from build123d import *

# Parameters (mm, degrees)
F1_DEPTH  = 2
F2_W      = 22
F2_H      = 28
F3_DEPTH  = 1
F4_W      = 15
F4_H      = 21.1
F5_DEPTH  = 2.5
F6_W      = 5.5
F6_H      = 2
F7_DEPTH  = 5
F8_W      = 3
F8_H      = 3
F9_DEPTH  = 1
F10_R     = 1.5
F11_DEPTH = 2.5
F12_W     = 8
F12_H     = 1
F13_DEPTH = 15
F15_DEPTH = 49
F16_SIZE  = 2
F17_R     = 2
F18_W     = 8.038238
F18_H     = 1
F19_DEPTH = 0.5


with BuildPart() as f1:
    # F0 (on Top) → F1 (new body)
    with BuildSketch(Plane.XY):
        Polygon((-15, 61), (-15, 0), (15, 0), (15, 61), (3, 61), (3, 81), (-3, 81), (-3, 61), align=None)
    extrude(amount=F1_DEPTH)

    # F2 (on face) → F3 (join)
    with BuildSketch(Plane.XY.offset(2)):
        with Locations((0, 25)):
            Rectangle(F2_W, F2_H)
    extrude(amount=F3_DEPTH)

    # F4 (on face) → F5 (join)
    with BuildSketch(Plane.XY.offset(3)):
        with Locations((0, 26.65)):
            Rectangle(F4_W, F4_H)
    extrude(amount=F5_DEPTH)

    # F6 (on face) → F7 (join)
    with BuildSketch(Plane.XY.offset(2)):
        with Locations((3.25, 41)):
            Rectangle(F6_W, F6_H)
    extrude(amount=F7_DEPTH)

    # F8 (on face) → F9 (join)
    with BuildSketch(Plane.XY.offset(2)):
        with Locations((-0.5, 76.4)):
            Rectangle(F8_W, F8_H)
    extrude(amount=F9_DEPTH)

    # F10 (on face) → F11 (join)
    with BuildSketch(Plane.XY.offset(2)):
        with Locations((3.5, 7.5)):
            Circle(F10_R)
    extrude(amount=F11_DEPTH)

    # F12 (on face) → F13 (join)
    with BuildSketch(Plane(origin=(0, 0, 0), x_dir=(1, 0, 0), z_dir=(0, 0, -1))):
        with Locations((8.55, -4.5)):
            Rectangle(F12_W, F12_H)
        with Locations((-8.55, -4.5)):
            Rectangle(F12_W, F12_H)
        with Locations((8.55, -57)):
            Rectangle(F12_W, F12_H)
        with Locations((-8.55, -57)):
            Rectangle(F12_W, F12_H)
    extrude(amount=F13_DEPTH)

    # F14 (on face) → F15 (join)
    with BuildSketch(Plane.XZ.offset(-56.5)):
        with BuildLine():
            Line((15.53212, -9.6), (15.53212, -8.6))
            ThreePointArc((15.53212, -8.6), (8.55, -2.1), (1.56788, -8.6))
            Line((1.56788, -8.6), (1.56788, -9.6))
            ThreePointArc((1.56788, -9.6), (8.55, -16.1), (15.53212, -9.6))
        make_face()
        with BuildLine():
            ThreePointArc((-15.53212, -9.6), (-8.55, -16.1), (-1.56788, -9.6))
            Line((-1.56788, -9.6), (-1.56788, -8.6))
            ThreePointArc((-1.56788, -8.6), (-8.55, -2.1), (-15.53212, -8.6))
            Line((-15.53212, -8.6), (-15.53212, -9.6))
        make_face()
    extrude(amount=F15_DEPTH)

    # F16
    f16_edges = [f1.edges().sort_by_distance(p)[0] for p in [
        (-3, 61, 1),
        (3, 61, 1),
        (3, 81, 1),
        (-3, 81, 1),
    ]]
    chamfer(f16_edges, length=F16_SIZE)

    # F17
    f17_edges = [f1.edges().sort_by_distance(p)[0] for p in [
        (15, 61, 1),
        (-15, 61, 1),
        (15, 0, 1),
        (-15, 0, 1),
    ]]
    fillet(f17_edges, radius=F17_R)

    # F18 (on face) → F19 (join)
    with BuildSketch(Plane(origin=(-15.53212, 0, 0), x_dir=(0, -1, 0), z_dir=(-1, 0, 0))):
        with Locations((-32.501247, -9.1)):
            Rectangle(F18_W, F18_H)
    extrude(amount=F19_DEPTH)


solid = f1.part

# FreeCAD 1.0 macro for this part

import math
import FreeCAD as App
import Part
import Sketcher
from FreeCAD import Vector
Q = App.Units.Quantity


def edges_at(feature, points):
    """Names of the edges that pass closest to the given points."""
    edges = feature.Shape.Edges
    near = lambda p: min(range(len(edges)), key=lambda i: edges[i].distToShape(Part.Vertex(*p))[0])
    return sorted({f"Edge{near(p) + 1}" for p in points})


def add_polygon(sketch, points):
    """Adds a closed chain of lines whose ends are joined by coincident constraints."""
    first, n = sketch.GeometryCount, len(points)
    for a, b in zip(points, points[1:] + points[:1]):
        sketch.addGeometry(Part.LineSegment(App.Vector(*a, 0), App.Vector(*b, 0)), False)
    for i in range(n):
        sketch.addConstraint(Sketcher.Constraint("Coincident", first + i, 2, first + (i + 1) % n, 1))

doc = App.newDocument("Part")
params = doc.addObject("Spreadsheet::Sheet", "Params")
for row, (alias, value) in enumerate([
    ("sketch1_width", "30 mm"),
    ("sketch1_width2", "12 mm"),
    ("sketch1_height", "61 mm"),
    ("sketch1_height2", "20 mm"),
    ("pad1_length", "2 mm"),
    ("sketch2_width", "22 mm"),
    ("sketch2_height", "28 mm"),
    ("pad2_length", "1 mm"),
    ("sketch3_width", "15 mm"),
    ("sketch3_height", "21.1 mm"),
    ("pad3_length", "2.5 mm"),
    ("sketch4_height", "2 mm"),
    ("sketch4_width", "5.5 mm"),
    ("pad4_length", "5 mm"),
    ("sketch5_width", "3 mm"),
    ("pad5_length", "1 mm"),
    ("sketch6_diameter", "3 mm"),
    ("pad6_length", "2.5 mm"),
    ("sketch7_width", "8 mm"),
    ("sketch7_height", "1 mm"),
    ("pad7_length", "15 mm"),
    ("sketch8_radius", "7 mm"),
    ("sketch8_height", "1 mm"),
    ("pad8_length", "49 mm"),
    ("chamfer_size", "2 mm"),
    ("fillet_radius", "2 mm"),
    ("sketch9_height", "1 mm"),
    ("pad9_length", "0.5 mm"),
], start=1):
    params.set(f"A{row}", alias)
    params.set(f"B{row}", "=" + value)
    params.setAlias(f"B{row}", alias)

body = doc.addObject("PartDesign::Body", "Body")

sketch1 = body.newObject("Sketcher::SketchObject", "Sketch")
sketch1.AttachmentSupport = (doc.getObject("XY_Plane"), [""])
sketch1.MapMode = "FlatFace"
add_polygon(sketch1, [(-15, 61), (-15, 0), (15, 0), (15, 61), (3, 61), (3, 81), (-3, 81), (-3, 61)])
sketch1.addConstraint(Sketcher.Constraint("Vertical", 0))
sketch1.addConstraint(Sketcher.Constraint("Horizontal", 1))
sketch1.addConstraint(Sketcher.Constraint("Vertical", 2))
sketch1.addConstraint(Sketcher.Constraint("Horizontal", 3))
sketch1.addConstraint(Sketcher.Constraint("Vertical", 4))
sketch1.addConstraint(Sketcher.Constraint("Horizontal", 5))
sketch1.addConstraint(Sketcher.Constraint("Vertical", 6))
sketch1.addConstraint(Sketcher.Constraint("Horizontal", 7))
sketch1.addConstraint(Sketcher.Constraint("Symmetric", 0, 2, 1, 2, -1, 1))
sketch1.addConstraint(Sketcher.Constraint("Symmetric", 3, 2, 6, 2, -2))
sketch1.addConstraint(Sketcher.Constraint("DistanceX", 1, 1, 1, 2, Q("30 mm")))
sketch1.addConstraint(Sketcher.Constraint("DistanceX", 3, 2, 3, 1, Q("12 mm")))
sketch1.addConstraint(Sketcher.Constraint("DistanceY", 0, 2, 0, 1, Q("61 mm")))
sketch1.addConstraint(Sketcher.Constraint("DistanceY", 4, 1, 4, 2, Q("20 mm")))
sketch1.setExpression("Constraints[18]", "Params.sketch1_width")
sketch1.setExpression("Constraints[19]", "Params.sketch1_width2")
sketch1.setExpression("Constraints[20]", "Params.sketch1_height")
sketch1.setExpression("Constraints[21]", "Params.sketch1_height2")
pad1 = body.newObject("PartDesign::Pad", "Pad")
pad1.Profile = sketch1
pad1.setExpression("Length", "Params.pad1_length")

sketch2 = body.newObject("Sketcher::SketchObject", "Sketch001")
sketch2.AttachmentSupport = (doc.getObject("XY_Plane"), [""])
sketch2.MapMode = "FlatFace"
sketch2.AttachmentOffset = App.Placement(Vector(0, 0, 2), App.Rotation())
add_polygon(sketch2, [(-11, 39), (-11, 11), (11, 11), (11, 39)])
sketch2.addConstraint(Sketcher.Constraint("Vertical", 0))
sketch2.addConstraint(Sketcher.Constraint("Horizontal", 1))
sketch2.addConstraint(Sketcher.Constraint("Vertical", 2))
sketch2.addConstraint(Sketcher.Constraint("Horizontal", 3))
sketch2.addConstraint(Sketcher.Constraint("DistanceX", 1, 1, 1, 2, Q("22 mm")))
sketch2.addConstraint(Sketcher.Constraint("DistanceY", 0, 2, 0, 1, Q("28 mm")))
sketch2.addConstraint(Sketcher.Constraint("DistanceX", 0, 2, -1, 1, Q("11 mm")))
sketch2.addConstraint(Sketcher.Constraint("DistanceY", -1, 1, 0, 2, Q("11 mm")))
sketch2.setExpression("Constraints[8]", "Params.sketch2_width")
sketch2.setExpression("Constraints[9]", "Params.sketch2_height")
pad2 = body.newObject("PartDesign::Pad", "Pad001")
pad2.Profile = sketch2
pad2.setExpression("Length", "Params.pad2_length")

sketch3 = body.newObject("Sketcher::SketchObject", "Sketch002")
sketch3.AttachmentSupport = (doc.getObject("XY_Plane"), [""])
sketch3.MapMode = "FlatFace"
sketch3.AttachmentOffset = App.Placement(Vector(0, 0, 3), App.Rotation())
add_polygon(sketch3, [(-8, 37), (-8, 16), (8, 16), (8, 37)])
sketch3.addConstraint(Sketcher.Constraint("Vertical", 0))
sketch3.addConstraint(Sketcher.Constraint("Horizontal", 1))
sketch3.addConstraint(Sketcher.Constraint("Vertical", 2))
sketch3.addConstraint(Sketcher.Constraint("Horizontal", 3))
sketch3.addConstraint(Sketcher.Constraint("DistanceX", 1, 1, 1, 2, Q("15 mm")))
sketch3.addConstraint(Sketcher.Constraint("DistanceY", 0, 2, 0, 1, Q("21.1 mm")))
sketch3.addConstraint(Sketcher.Constraint("DistanceX", 0, 2, -1, 1, Q("7.5 mm")))
sketch3.addConstraint(Sketcher.Constraint("DistanceY", -1, 1, 0, 2, Q("16.1 mm")))
sketch3.setExpression("Constraints[8]", "Params.sketch3_width")
sketch3.setExpression("Constraints[9]", "Params.sketch3_height")
pad3 = body.newObject("PartDesign::Pad", "Pad002")
pad3.Profile = sketch3
pad3.setExpression("Length", "Params.pad3_length")

sketch4 = body.newObject("Sketcher::SketchObject", "Sketch003")
sketch4.AttachmentSupport = (doc.getObject("XY_Plane"), [""])
sketch4.MapMode = "FlatFace"
sketch4.AttachmentOffset = App.Placement(Vector(0, 0, 2), App.Rotation())
add_polygon(sketch4, [(0.5, 42), (0.5, 40), (6, 40), (6, 42)])
sketch4.addConstraint(Sketcher.Constraint("Vertical", 0))
sketch4.addConstraint(Sketcher.Constraint("Horizontal", 1))
sketch4.addConstraint(Sketcher.Constraint("Vertical", 2))
sketch4.addConstraint(Sketcher.Constraint("Horizontal", 3))
sketch4.addConstraint(Sketcher.Constraint("DistanceY", 0, 2, 0, 1, Q("2 mm")))
sketch4.addConstraint(Sketcher.Constraint("DistanceX", 1, 1, 1, 2, Q("5.5 mm")))
sketch4.addConstraint(Sketcher.Constraint("DistanceY", -1, 1, 0, 2, Q("40 mm")))
sketch4.addConstraint(Sketcher.Constraint("DistanceX", -1, 1, 1, 2, Q("6 mm")))
sketch4.setExpression("Constraints[8]", "Params.sketch4_height")
sketch4.setExpression("Constraints[9]", "Params.sketch4_width")
pad4 = body.newObject("PartDesign::Pad", "Pad003")
pad4.Profile = sketch4
pad4.setExpression("Length", "Params.pad4_length")

sketch5 = body.newObject("Sketcher::SketchObject", "Sketch004")
sketch5.AttachmentSupport = (doc.getObject("XY_Plane"), [""])
sketch5.MapMode = "FlatFace"
sketch5.AttachmentOffset = App.Placement(Vector(0, 0, 2), App.Rotation())
add_polygon(sketch5, [(-2, 77.9), (-2, 74.9), (1, 74.9), (1, 77.9)])
sketch5.addConstraint(Sketcher.Constraint("Vertical", 0))
sketch5.addConstraint(Sketcher.Constraint("Horizontal", 1))
sketch5.addConstraint(Sketcher.Constraint("Vertical", 2))
sketch5.addConstraint(Sketcher.Constraint("Horizontal", 3))
sketch5.addConstraint(Sketcher.Constraint("Equal", 3, 0))
sketch5.addConstraint(Sketcher.Constraint("DistanceX", 1, 1, 1, 2, Q("3 mm")))
sketch5.addConstraint(Sketcher.Constraint("DistanceX", 0, 2, -1, 1, Q("2 mm")))
sketch5.addConstraint(Sketcher.Constraint("DistanceY", -1, 1, 0, 2, Q("74.9 mm")))
sketch5.setExpression("Constraints[9]", "Params.sketch5_width")
pad5 = body.newObject("PartDesign::Pad", "Pad004")
pad5.Profile = sketch5
pad5.setExpression("Length", "Params.pad5_length")

sketch6 = body.newObject("Sketcher::SketchObject", "Sketch005")
sketch6.AttachmentSupport = (doc.getObject("XY_Plane"), [""])
sketch6.MapMode = "FlatFace"
sketch6.AttachmentOffset = App.Placement(Vector(0, 0, 2), App.Rotation())
sketch6.addGeometry(Part.Circle(Vector(3.5, 7.5, 0), Vector(0, 0, 1), 1.5), False)
sketch6.addConstraint(Sketcher.Constraint("Diameter", 0, Q("3 mm")))
sketch6.addConstraint(Sketcher.Constraint("DistanceX", -1, 1, 0, 3, Q("3.5 mm")))
sketch6.addConstraint(Sketcher.Constraint("DistanceY", -1, 1, 0, 3, Q("7.5 mm")))
sketch6.setExpression("Constraints[0]", "Params.sketch6_diameter")
pad6 = body.newObject("PartDesign::Pad", "Pad005")
pad6.Profile = sketch6
pad6.setExpression("Length", "Params.pad6_length")

sketch7 = body.newObject("Sketcher::SketchObject", "Sketch006")
sketch7.AttachmentSupport = (doc.getObject("XY_Plane"), [""])
sketch7.MapMode = "FlatFace"
add_polygon(sketch7, [(4.5, 4), (4.5, 5), (12.6, 5), (12.6, 4)])
add_polygon(sketch7, [(-12.6, 4), (-12.6, 5), (-4.5, 5), (-4.5, 4)])
add_polygon(sketch7, [(4.5, 56.5), (4.5, 57.5), (12.6, 57.5), (12.6, 56.5)])
add_polygon(sketch7, [(-12.6, 56.5), (-12.6, 57.5), (-4.5, 57.5), (-4.5, 56.5)])
sketch7.addConstraint(Sketcher.Constraint("Vertical", 0))
sketch7.addConstraint(Sketcher.Constraint("Horizontal", 1))
sketch7.addConstraint(Sketcher.Constraint("Vertical", 2))
sketch7.addConstraint(Sketcher.Constraint("Horizontal", 3))
sketch7.addConstraint(Sketcher.Constraint("Vertical", 4))
sketch7.addConstraint(Sketcher.Constraint("Horizontal", 5))
sketch7.addConstraint(Sketcher.Constraint("Vertical", 6))
sketch7.addConstraint(Sketcher.Constraint("Horizontal", 7))
sketch7.addConstraint(Sketcher.Constraint("Vertical", 8))
sketch7.addConstraint(Sketcher.Constraint("Horizontal", 9))
sketch7.addConstraint(Sketcher.Constraint("Vertical", 10))
sketch7.addConstraint(Sketcher.Constraint("Horizontal", 11))
sketch7.addConstraint(Sketcher.Constraint("Vertical", 12))
sketch7.addConstraint(Sketcher.Constraint("Horizontal", 13))
sketch7.addConstraint(Sketcher.Constraint("Vertical", 14))
sketch7.addConstraint(Sketcher.Constraint("Horizontal", 15))
sketch7.addConstraint(Sketcher.Constraint("Symmetric", 1, 2, 4, 2, -2))
sketch7.addConstraint(Sketcher.Constraint("Symmetric", 3, 2, 6, 2, -2))
sketch7.addConstraint(Sketcher.Constraint("Symmetric", 9, 2, 12, 2, -2))
sketch7.addConstraint(Sketcher.Constraint("Symmetric", 11, 2, 14, 2, -2))
sketch7.addConstraint(Sketcher.Constraint("Vertical", 3, 2, 8, 2))
sketch7.addConstraint(Sketcher.Constraint("Vertical", 2, 2, 9, 2))
sketch7.addConstraint(Sketcher.Constraint("Equal", 6, 8))
sketch7.addConstraint(Sketcher.Constraint("DistanceX", 1, 1, 1, 2, Q("8 mm")))
sketch7.addConstraint(Sketcher.Constraint("DistanceY", 0, 1, 0, 2, Q("1 mm")))
sketch7.addConstraint(Sketcher.Constraint("DistanceY", -1, 1, 0, 2, Q("5 mm")))
sketch7.addConstraint(Sketcher.Constraint("DistanceY", -1, 1, 8, 2, Q("57.5 mm")))
sketch7.addConstraint(Sketcher.Constraint("DistanceX", 4, 2, 0, 2, Q("17.1 mm")))
sketch7.setExpression("Constraints[39]", "Params.sketch7_width")
sketch7.setExpression("Constraints[40]", "Params.sketch7_height")
pad7 = body.newObject("PartDesign::Pad", "Pad006")
pad7.Profile = sketch7
pad7.setExpression("Length", "Params.pad7_length")
pad7.Reversed = True

sketch8 = body.newObject("Sketcher::SketchObject", "Sketch007")
sketch8.AttachmentSupport = (doc.getObject("XZ_Plane"), [""])
sketch8.MapMode = "FlatFace"
sketch8.AttachmentOffset = App.Placement(Vector(0, 0, -56.5), App.Rotation())
sketch8.addGeometry(Part.LineSegment(Vector(15.5, -9.6, 0), Vector(15.5, -8.6, 0)), False)
sketch8.addGeometry(Part.ArcOfCircle(Part.Circle(Vector(8.6, -9.1, 0), Vector(0, 0, 1), 7), math.radians(4), math.radians(176)), False)
sketch8.addGeometry(Part.LineSegment(Vector(1.6, -8.6, 0), Vector(1.6, -9.6, 0)), False)
sketch8.addGeometry(Part.ArcOfCircle(Part.Circle(Vector(8.6, -9.1, 0), Vector(0, 0, 1), 7), math.radians(-176), math.radians(-4)), False)
sketch8.addGeometry(Part.ArcOfCircle(Part.Circle(Vector(-8.6, -9.1, 0), Vector(0, 0, 1), 7), math.radians(-176), math.radians(-4)), False)
sketch8.addGeometry(Part.LineSegment(Vector(-1.6, -9.6, 0), Vector(-1.6, -8.6, 0)), False)
sketch8.addGeometry(Part.ArcOfCircle(Part.Circle(Vector(-8.6, -9.1, 0), Vector(0, 0, 1), 7), math.radians(4), math.radians(176)), False)
sketch8.addGeometry(Part.LineSegment(Vector(-15.5, -8.6, 0), Vector(-15.5, -9.6, 0)), False)
sketch8.addConstraint(Sketcher.Constraint("Coincident", 0, 2, 1, 1))
sketch8.addConstraint(Sketcher.Constraint("Coincident", 1, 2, 2, 1))
sketch8.addConstraint(Sketcher.Constraint("Coincident", 2, 2, 3, 1))
sketch8.addConstraint(Sketcher.Constraint("Coincident", 3, 2, 0, 1))
sketch8.addConstraint(Sketcher.Constraint("Coincident", 4, 2, 5, 1))
sketch8.addConstraint(Sketcher.Constraint("Coincident", 5, 2, 6, 1))
sketch8.addConstraint(Sketcher.Constraint("Coincident", 6, 2, 7, 1))
sketch8.addConstraint(Sketcher.Constraint("Coincident", 7, 2, 4, 1))
sketch8.addConstraint(Sketcher.Constraint("Vertical", 0))
sketch8.addConstraint(Sketcher.Constraint("Vertical", 2))
sketch8.addConstraint(Sketcher.Constraint("Vertical", 5))
sketch8.addConstraint(Sketcher.Constraint("Vertical", 7))
sketch8.addConstraint(Sketcher.Constraint("Coincident", 3, 3, 1, 3))
sketch8.addConstraint(Sketcher.Constraint("Coincident", 6, 3, 4, 3))
sketch8.addConstraint(Sketcher.Constraint("Equal", 1, 3))
sketch8.addConstraint(Sketcher.Constraint("Equal", 3, 4))
sketch8.addConstraint(Sketcher.Constraint("Equal", 4, 6))
sketch8.addConstraint(Sketcher.Constraint("Symmetric", 1, 3, 4, 3, -2))
sketch8.addConstraint(Sketcher.Constraint("Horizontal", 0, 2, 1, 2))
sketch8.addConstraint(Sketcher.Constraint("Horizontal", 3, 2, 4, 2))
sketch8.addConstraint(Sketcher.Constraint("Horizontal", 5, 2, 6, 2))
sketch8.addConstraint(Sketcher.Constraint("Radius", 1, Q("7 mm")))
sketch8.addConstraint(Sketcher.Constraint("DistanceY", 0, 1, 0, 2, Q("1 mm")))
sketch8.addConstraint(Sketcher.Constraint("DistanceY", 1, 3, -1, 1, Q("9.1 mm")))
sketch8.addConstraint(Sketcher.Constraint("DistanceX", 4, 3, 1, 3, Q("17.1 mm")))
sketch8.setExpression("Constraints[21]", "Params.sketch8_radius")
sketch8.setExpression("Constraints[22]", "Params.sketch8_height")
pad8 = body.newObject("PartDesign::Pad", "Pad007")
pad8.Profile = sketch8
pad8.setExpression("Length", "Params.pad8_length")
doc.recompute()

chamfer = body.newObject("PartDesign::Chamfer", "Chamfer")
chamfer.Base = (pad8, edges_at(pad8, [
    (-3, 61, 1),
    (3, 61, 1),
    (3, 81, 1),
    (-3, 81, 1),
]))
chamfer.setExpression("Size", "Params.chamfer_size")
doc.recompute()

fillet = body.newObject("PartDesign::Fillet", "Fillet")
fillet.Base = (chamfer, edges_at(chamfer, [
    (15, 61, 1),
    (-15, 61, 1),
    (15, 0, 1),
    (-15, 0, 1),
]))
fillet.setExpression("Radius", "Params.fillet_radius")

sketch9 = body.newObject("Sketcher::SketchObject", "Sketch008")
sketch9.AttachmentSupport = (doc.getObject("YZ_Plane"), [""])
sketch9.MapMode = "FlatFace"
sketch9.AttachmentOffset = App.Placement(Vector(0, 0, -15.53212), App.Rotation())
add_polygon(sketch9, [(36.5, -8.6), (36.5, -9.6), (28.5, -9.6), (28.5, -8.6)])
sketch9.addConstraint(Sketcher.Constraint("Vertical", 0))
sketch9.addConstraint(Sketcher.Constraint("Horizontal", 1))
sketch9.addConstraint(Sketcher.Constraint("Vertical", 2))
sketch9.addConstraint(Sketcher.Constraint("Horizontal", 3))
sketch9.addConstraint(Sketcher.Constraint("DistanceY", 0, 2, 0, 1, Q("1 mm")))
sketch9.addConstraint(Sketcher.Constraint("DistanceY", 0, 2, -1, 1, Q("9.6 mm")))
sketch9.addConstraint(Sketcher.Constraint("DistanceX", 1, 2, 1, 1, Q("8.038238 mm")))
sketch9.addConstraint(Sketcher.Constraint("DistanceX", -1, 1, 0, 2, Q("36.520366 mm")))
sketch9.setExpression("Constraints[8]", "Params.sketch9_height")
pad9 = body.newObject("PartDesign::Pad", "Pad008")
pad9.Profile = sketch9
pad9.setExpression("Length", "Params.pad9_length")
pad9.Reversed = True

doc.recompute()
